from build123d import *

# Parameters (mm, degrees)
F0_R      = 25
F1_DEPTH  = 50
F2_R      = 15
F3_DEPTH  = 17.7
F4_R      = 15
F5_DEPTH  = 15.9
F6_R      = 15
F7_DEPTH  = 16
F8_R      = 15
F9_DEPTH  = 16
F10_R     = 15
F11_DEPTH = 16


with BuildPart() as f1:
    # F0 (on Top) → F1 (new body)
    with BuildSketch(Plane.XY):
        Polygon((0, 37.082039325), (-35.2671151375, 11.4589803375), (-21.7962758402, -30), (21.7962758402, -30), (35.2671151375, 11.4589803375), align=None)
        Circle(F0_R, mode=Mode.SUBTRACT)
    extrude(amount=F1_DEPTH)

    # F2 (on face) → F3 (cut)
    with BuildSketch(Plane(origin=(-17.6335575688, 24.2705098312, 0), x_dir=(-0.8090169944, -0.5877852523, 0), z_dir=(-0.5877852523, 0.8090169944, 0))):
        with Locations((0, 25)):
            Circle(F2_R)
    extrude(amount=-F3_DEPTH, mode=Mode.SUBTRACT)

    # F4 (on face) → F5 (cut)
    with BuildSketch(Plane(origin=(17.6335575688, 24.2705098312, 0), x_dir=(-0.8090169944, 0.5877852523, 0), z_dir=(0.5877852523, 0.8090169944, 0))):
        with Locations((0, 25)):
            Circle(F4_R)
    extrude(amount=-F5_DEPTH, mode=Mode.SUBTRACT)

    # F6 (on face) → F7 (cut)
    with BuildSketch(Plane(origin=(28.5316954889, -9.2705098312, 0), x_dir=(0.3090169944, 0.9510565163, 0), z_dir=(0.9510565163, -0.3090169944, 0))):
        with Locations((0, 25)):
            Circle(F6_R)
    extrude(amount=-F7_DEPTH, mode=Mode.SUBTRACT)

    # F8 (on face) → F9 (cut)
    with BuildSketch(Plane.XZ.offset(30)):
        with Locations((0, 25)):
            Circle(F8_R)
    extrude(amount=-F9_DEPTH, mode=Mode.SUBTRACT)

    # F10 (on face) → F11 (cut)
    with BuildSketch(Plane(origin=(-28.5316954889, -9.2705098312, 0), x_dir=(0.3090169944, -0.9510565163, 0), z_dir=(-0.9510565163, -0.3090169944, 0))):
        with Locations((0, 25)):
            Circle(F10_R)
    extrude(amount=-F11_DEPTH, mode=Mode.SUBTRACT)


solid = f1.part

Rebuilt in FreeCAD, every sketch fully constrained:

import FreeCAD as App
import Part
import Sketcher
from FreeCAD import Vector
Q = App.Units.Quantity

doc = App.newDocument("Part")
body = doc.addObject("PartDesign::Body", "Body")

# Sketch on XY plane
sketch1 = doc.addObject("Sketcher::SketchObject", "Sketch")
body.addObject(sketch1)
sketch1.AttachmentSupport = (doc.XY_Plane, [""])
sketch1.MapMode = "FlatFace"
sketch1.addGeometry(Part.LineSegment(Vector(0, 37, 0), Vector(-35, 11, 0)), False)
sketch1.addGeometry(Part.LineSegment(Vector(-35, 11, 0), Vector(-22, -30, 0)), False)
sketch1.addGeometry(Part.LineSegment(Vector(-22, -30, 0), Vector(22, -30, 0)), False)
sketch1.addGeometry(Part.LineSegment(Vector(22, -30, 0), Vector(35, 11, 0)), False)
sketch1.addGeometry(Part.LineSegment(Vector(35, 11, 0), Vector(0, 37, 0)), False)
sketch1.addGeometry(Part.Circle(Vector(0, 0, 0), Vector(0, 0, 1), 25), False)
sketch1.addConstraint(Sketcher.Constraint("Coincident", 0, 2, 1, 1))
sketch1.addConstraint(Sketcher.Constraint("Coincident", 1, 2, 2, 1))
sketch1.addConstraint(Sketcher.Constraint("Coincident", 2, 2, 3, 1))
sketch1.addConstraint(Sketcher.Constraint("Coincident", 3, 2, 4, 1))
sketch1.addConstraint(Sketcher.Constraint("Coincident", 4, 2, 0, 1))
sketch1.addConstraint(Sketcher.Constraint("Horizontal", 2))
sketch1.addConstraint(Sketcher.Constraint("Coincident", 5, 3, -1, 1))
sketch1.addConstraint(Sketcher.Constraint("Symmetric", 0, 2, 3, 2, -2))
sketch1.addConstraint(Sketcher.Constraint("PointOnObject", 4, 2, -2))
sketch1.addConstraint(Sketcher.Constraint("Equal", 0, 1))
sketch1.addConstraint(Sketcher.Constraint("Equal", 1, 3))
sketch1.addConstraint(Sketcher.Constraint("Diameter", 5, Q("50 mm")))
sketch1.addConstraint(Sketcher.Constraint("Angle", 0, Q("-144 deg")))
sketch1.addConstraint(Sketcher.Constraint("Angle", 1, Q("-72 deg")))
sketch1.addConstraint(Sketcher.Constraint("DistanceY", 1, 2, -1, 1, Q("30 mm")))
sketch1.addConstraint(Sketcher.Constraint("DistanceX", 2, 1, 2, 2, Q("43.592552 mm")))
pad1 = doc.addObject("PartDesign::Pad", "Pad")
body.addObject(pad1)
pad1.Profile = sketch1
pad1.Length = 50

# Sketch on an angled plane
sketch2 = doc.addObject("Sketcher::SketchObject", "Sketch001")
body.addObject(sketch2)
sketch2.Placement = App.Placement(Vector(-17.633558, 24.27051, 0), App.Rotation(Vector(-0.809016994, -0.587785252, 0), Vector(0, 0, 0.999999999), Vector(-0.587785252, 0.809016994, 0), "ZXY"))
sketch2.addGeometry(Part.Circle(Vector(0, 25, 0), Vector(0, 0, 1), 15), False)
sketch2.addConstraint(Sketcher.Constraint("PointOnObject", 0, 3, -2))
sketch2.addConstraint(Sketcher.Constraint("Diameter", 0, Q("30 mm")))
sketch2.addConstraint(Sketcher.Constraint("DistanceY", -1, 1, 0, 3, Q("25 mm")))
pocket1 = doc.addObject("PartDesign::Pocket", "Pocket")
body.addObject(pocket1)
pocket1.Profile = sketch2
pocket1.Length = 17.7

# Sketch on an angled plane
sketch3 = doc.addObject("Sketcher::SketchObject", "Sketch002")
body.addObject(sketch3)
sketch3.Placement = App.Placement(Vector(17.633558, 24.27051, 0), App.Rotation(Vector(-0.809016994, 0.587785252, 0), Vector(0, 0, 0.999999999), Vector(0.587785252, 0.809016994, 0), "ZXY"))
sketch3.addGeometry(Part.Circle(Vector(0, 25, 0), Vector(0, 0, 1), 15), False)
sketch3.addConstraint(Sketcher.Constraint("PointOnObject", 0, 3, -2))
sketch3.addConstraint(Sketcher.Constraint("Diameter", 0, Q("30 mm")))
sketch3.addConstraint(Sketcher.Constraint("DistanceY", -1, 1, 0, 3, Q("25 mm")))
pocket2 = doc.addObject("PartDesign::Pocket", "Pocket001")
body.addObject(pocket2)
pocket2.Profile = sketch3
pocket2.Length = 15.9

# Sketch on an angled plane
sketch4 = doc.addObject("Sketcher::SketchObject", "Sketch003")
body.addObject(sketch4)
sketch4.Placement = App.Placement(Vector(28.531695, -9.27051, 0), App.Rotation(Vector(0.309016994, 0.951056516, 0), Vector(0, 0, 0.999999999), Vector(0.951056516, -0.309016994, 0), "ZXY"))
sketch4.addGeometry(Part.Circle(Vector(0, 25, 0), Vector(0, 0, 1), 15), False)
sketch4.addConstraint(Sketcher.Constraint("PointOnObject", 0, 3, -2))
sketch4.addConstraint(Sketcher.Constraint("Diameter", 0, Q("30 mm")))
sketch4.addConstraint(Sketcher.Constraint("DistanceY", -1, 1, 0, 3, Q("25 mm")))
pocket3 = doc.addObject("PartDesign::Pocket", "Pocket002")
body.addObject(pocket3)
pocket3.Profile = sketch4
pocket3.Length = 16

# Sketch on XZ plane
sketch5 = doc.addObject("Sketcher::SketchObject", "Sketch004")
body.addObject(sketch5)
sketch5.AttachmentSupport = (doc.XZ_Plane, [""])
sketch5.MapMode = "FlatFace"
sketch5.AttachmentOffset = App.Placement(Vector(0, 0, 30), App.Rotation())
sketch5.addGeometry(Part.Circle(Vector(0, 25, 0), Vector(0, 0, 1), 15), False)
sketch5.addConstraint(Sketcher.Constraint("PointOnObject", 0, 3, -2))
sketch5.addConstraint(Sketcher.Constraint("Diameter", 0, Q("30 mm")))
sketch5.addConstraint(Sketcher.Constraint("DistanceY", -1, 1, 0, 3, Q("25 mm")))
pocket4 = doc.addObject("PartDesign::Pocket", "Pocket003")
body.addObject(pocket4)
pocket4.Profile = sketch5
pocket4.Length = 16

# Sketch on an angled plane
sketch6 = doc.addObject("Sketcher::SketchObject", "Sketch005")
body.addObject(sketch6)
sketch6.Placement = App.Placement(Vector(-28.531695, -9.27051, 0), App.Rotation(Vector(0.309016994, -0.951056516, 0), Vector(0, 0, 0.999999999), Vector(-0.951056516, -0.309016994, 0), "ZXY"))
sketch6.addGeometry(Part.Circle(Vector(0, 25, 0), Vector(0, 0, 1), 15), False)
sketch6.addConstraint(Sketcher.Constraint("PointOnObject", 0, 3, -2))
sketch6.addConstraint(Sketcher.Constraint("Diameter", 0, Q("30 mm")))
sketch6.addConstraint(Sketcher.Constraint("DistanceY", -1, 1, 0, 3, Q("25 mm")))
pocket5 = doc.addObject("PartDesign::Pocket", "Pocket004")
body.addObject(pocket5)
pocket5.Profile = sketch6
pocket5.Length = 16

doc.recompute()
